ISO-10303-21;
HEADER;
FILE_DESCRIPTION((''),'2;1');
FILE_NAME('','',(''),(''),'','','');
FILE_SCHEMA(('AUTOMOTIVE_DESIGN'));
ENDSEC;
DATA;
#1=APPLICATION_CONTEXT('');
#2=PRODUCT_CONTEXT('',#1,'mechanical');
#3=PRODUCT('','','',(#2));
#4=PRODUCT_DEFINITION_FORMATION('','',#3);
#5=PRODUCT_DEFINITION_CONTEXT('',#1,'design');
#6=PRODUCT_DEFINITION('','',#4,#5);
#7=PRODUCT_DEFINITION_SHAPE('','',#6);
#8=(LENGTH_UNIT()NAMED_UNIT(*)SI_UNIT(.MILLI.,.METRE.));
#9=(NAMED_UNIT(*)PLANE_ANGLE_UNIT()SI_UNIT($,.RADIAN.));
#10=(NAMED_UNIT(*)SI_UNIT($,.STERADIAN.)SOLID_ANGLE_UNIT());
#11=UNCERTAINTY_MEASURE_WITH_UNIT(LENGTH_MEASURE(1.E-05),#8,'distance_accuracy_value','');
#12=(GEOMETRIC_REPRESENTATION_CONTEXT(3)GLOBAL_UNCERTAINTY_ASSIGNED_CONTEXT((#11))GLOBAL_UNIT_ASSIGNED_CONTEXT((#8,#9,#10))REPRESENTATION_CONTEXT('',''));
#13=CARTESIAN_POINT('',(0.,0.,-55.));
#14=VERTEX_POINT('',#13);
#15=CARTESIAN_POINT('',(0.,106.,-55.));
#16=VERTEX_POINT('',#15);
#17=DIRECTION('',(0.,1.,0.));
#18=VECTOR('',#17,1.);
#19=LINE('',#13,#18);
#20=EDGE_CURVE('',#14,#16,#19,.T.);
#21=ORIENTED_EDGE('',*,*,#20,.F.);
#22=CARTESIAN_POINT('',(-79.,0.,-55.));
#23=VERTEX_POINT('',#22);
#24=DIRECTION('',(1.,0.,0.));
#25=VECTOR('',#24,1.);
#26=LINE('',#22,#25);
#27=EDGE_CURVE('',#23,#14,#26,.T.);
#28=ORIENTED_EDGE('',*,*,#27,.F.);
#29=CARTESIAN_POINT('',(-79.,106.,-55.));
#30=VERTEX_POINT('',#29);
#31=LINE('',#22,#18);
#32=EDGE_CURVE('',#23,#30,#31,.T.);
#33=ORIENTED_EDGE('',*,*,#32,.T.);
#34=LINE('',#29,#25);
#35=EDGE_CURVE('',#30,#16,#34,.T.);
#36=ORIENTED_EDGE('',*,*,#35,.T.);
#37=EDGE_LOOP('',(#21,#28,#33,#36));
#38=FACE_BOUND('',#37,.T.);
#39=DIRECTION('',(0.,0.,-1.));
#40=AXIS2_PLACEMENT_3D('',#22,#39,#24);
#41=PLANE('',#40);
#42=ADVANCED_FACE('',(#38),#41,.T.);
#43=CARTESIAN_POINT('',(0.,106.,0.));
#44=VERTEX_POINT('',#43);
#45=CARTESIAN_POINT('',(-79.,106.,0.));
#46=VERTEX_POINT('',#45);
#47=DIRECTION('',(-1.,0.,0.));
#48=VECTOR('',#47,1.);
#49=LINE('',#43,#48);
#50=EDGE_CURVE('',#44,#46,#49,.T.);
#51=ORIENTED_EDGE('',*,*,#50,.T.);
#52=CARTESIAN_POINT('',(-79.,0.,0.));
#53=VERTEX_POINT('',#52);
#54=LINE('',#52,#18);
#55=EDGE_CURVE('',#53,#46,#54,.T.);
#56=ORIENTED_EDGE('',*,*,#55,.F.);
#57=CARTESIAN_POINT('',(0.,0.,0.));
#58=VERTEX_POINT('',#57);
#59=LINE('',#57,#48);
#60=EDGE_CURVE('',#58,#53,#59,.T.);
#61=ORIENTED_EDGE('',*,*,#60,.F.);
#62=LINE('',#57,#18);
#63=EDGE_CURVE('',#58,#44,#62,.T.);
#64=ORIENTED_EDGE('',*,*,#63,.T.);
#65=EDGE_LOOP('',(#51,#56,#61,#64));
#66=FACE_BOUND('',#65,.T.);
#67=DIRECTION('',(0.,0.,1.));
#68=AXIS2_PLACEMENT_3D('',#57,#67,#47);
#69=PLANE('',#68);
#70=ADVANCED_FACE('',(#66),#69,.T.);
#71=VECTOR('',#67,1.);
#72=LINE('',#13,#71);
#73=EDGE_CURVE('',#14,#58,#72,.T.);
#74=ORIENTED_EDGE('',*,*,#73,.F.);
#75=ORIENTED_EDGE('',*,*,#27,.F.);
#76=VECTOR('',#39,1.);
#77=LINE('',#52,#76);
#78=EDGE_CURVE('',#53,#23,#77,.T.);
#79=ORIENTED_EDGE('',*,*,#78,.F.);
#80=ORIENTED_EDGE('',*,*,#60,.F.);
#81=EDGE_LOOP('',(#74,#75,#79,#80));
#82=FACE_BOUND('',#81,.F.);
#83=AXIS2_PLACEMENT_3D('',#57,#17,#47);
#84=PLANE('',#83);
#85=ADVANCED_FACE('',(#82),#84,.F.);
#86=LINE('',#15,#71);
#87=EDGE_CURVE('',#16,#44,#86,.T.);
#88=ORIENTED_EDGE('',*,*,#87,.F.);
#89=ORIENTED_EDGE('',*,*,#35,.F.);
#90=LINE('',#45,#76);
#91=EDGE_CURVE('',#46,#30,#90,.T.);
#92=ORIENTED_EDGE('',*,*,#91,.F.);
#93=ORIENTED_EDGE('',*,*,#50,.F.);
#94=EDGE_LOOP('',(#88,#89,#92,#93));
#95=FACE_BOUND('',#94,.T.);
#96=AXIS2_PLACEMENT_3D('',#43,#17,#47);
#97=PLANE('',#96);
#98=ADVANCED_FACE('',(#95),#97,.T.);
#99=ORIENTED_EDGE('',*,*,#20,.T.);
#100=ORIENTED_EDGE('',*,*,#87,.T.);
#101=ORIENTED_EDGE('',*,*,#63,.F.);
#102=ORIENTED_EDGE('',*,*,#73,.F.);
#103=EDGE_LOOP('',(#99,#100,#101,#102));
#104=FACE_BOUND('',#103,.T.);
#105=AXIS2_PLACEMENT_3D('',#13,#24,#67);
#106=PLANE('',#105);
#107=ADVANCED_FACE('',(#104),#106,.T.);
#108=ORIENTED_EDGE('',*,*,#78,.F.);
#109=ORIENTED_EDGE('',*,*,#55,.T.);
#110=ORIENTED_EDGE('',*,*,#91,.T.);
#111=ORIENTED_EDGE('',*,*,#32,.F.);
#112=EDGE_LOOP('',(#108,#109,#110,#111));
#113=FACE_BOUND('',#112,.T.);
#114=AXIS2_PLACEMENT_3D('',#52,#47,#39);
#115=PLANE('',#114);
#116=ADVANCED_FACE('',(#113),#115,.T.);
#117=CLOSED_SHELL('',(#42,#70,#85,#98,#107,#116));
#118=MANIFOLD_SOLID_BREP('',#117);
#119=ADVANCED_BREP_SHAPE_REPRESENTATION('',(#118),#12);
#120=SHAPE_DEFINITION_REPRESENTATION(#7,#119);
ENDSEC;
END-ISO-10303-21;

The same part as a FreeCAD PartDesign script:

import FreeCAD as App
import Part
import Sketcher
Q = App.Units.Quantity


def add_polygon(sketch, points):
    """Adds a closed chain of lines whose ends are joined by coincident constraints."""
    first, n = sketch.GeometryCount, len(points)
    for a, b in zip(points, points[1:] + points[:1]):
        sketch.addGeometry(Part.LineSegment(App.Vector(*a, 0), App.Vector(*b, 0)), False)
    for i in range(n):
        sketch.addConstraint(Sketcher.Constraint("Coincident", first + i, 2, first + (i + 1) % n, 1))

doc = App.newDocument("Part")
body = doc.addObject("PartDesign::Body", "Body")

# Sketch on XZ plane
sketch1 = body.newObject("Sketcher::SketchObject", "Sketch")
sketch1.AttachmentSupport = (doc.getObject("XZ_Plane"), [""])
sketch1.MapMode = "FlatFace"
add_polygon(sketch1, [(-79, 0), (0, 0), (0, -55), (-79, -55)])  # lines 0-3
sketch1.addConstraint([
    Sketcher.Constraint("Horizontal", 0),
    Sketcher.Constraint("Vertical", 1),
    Sketcher.Constraint("Horizontal", 2),
    Sketcher.Constraint("Vertical", 3),
    Sketcher.Constraint("Coincident", 0, 2, -1, 1),
    Sketcher.Constraint("DistanceX", 0, 1, 0, 2, Q("79 mm")),
    Sketcher.Constraint("DistanceY", 1, 2, 1, 1, Q("55 mm")),
])
pad1 = body.newObject("PartDesign::Pad", "Pad")
pad1.Profile = sketch1
pad1.Length = 106
pad1.Reversed = True

doc.recompute()
